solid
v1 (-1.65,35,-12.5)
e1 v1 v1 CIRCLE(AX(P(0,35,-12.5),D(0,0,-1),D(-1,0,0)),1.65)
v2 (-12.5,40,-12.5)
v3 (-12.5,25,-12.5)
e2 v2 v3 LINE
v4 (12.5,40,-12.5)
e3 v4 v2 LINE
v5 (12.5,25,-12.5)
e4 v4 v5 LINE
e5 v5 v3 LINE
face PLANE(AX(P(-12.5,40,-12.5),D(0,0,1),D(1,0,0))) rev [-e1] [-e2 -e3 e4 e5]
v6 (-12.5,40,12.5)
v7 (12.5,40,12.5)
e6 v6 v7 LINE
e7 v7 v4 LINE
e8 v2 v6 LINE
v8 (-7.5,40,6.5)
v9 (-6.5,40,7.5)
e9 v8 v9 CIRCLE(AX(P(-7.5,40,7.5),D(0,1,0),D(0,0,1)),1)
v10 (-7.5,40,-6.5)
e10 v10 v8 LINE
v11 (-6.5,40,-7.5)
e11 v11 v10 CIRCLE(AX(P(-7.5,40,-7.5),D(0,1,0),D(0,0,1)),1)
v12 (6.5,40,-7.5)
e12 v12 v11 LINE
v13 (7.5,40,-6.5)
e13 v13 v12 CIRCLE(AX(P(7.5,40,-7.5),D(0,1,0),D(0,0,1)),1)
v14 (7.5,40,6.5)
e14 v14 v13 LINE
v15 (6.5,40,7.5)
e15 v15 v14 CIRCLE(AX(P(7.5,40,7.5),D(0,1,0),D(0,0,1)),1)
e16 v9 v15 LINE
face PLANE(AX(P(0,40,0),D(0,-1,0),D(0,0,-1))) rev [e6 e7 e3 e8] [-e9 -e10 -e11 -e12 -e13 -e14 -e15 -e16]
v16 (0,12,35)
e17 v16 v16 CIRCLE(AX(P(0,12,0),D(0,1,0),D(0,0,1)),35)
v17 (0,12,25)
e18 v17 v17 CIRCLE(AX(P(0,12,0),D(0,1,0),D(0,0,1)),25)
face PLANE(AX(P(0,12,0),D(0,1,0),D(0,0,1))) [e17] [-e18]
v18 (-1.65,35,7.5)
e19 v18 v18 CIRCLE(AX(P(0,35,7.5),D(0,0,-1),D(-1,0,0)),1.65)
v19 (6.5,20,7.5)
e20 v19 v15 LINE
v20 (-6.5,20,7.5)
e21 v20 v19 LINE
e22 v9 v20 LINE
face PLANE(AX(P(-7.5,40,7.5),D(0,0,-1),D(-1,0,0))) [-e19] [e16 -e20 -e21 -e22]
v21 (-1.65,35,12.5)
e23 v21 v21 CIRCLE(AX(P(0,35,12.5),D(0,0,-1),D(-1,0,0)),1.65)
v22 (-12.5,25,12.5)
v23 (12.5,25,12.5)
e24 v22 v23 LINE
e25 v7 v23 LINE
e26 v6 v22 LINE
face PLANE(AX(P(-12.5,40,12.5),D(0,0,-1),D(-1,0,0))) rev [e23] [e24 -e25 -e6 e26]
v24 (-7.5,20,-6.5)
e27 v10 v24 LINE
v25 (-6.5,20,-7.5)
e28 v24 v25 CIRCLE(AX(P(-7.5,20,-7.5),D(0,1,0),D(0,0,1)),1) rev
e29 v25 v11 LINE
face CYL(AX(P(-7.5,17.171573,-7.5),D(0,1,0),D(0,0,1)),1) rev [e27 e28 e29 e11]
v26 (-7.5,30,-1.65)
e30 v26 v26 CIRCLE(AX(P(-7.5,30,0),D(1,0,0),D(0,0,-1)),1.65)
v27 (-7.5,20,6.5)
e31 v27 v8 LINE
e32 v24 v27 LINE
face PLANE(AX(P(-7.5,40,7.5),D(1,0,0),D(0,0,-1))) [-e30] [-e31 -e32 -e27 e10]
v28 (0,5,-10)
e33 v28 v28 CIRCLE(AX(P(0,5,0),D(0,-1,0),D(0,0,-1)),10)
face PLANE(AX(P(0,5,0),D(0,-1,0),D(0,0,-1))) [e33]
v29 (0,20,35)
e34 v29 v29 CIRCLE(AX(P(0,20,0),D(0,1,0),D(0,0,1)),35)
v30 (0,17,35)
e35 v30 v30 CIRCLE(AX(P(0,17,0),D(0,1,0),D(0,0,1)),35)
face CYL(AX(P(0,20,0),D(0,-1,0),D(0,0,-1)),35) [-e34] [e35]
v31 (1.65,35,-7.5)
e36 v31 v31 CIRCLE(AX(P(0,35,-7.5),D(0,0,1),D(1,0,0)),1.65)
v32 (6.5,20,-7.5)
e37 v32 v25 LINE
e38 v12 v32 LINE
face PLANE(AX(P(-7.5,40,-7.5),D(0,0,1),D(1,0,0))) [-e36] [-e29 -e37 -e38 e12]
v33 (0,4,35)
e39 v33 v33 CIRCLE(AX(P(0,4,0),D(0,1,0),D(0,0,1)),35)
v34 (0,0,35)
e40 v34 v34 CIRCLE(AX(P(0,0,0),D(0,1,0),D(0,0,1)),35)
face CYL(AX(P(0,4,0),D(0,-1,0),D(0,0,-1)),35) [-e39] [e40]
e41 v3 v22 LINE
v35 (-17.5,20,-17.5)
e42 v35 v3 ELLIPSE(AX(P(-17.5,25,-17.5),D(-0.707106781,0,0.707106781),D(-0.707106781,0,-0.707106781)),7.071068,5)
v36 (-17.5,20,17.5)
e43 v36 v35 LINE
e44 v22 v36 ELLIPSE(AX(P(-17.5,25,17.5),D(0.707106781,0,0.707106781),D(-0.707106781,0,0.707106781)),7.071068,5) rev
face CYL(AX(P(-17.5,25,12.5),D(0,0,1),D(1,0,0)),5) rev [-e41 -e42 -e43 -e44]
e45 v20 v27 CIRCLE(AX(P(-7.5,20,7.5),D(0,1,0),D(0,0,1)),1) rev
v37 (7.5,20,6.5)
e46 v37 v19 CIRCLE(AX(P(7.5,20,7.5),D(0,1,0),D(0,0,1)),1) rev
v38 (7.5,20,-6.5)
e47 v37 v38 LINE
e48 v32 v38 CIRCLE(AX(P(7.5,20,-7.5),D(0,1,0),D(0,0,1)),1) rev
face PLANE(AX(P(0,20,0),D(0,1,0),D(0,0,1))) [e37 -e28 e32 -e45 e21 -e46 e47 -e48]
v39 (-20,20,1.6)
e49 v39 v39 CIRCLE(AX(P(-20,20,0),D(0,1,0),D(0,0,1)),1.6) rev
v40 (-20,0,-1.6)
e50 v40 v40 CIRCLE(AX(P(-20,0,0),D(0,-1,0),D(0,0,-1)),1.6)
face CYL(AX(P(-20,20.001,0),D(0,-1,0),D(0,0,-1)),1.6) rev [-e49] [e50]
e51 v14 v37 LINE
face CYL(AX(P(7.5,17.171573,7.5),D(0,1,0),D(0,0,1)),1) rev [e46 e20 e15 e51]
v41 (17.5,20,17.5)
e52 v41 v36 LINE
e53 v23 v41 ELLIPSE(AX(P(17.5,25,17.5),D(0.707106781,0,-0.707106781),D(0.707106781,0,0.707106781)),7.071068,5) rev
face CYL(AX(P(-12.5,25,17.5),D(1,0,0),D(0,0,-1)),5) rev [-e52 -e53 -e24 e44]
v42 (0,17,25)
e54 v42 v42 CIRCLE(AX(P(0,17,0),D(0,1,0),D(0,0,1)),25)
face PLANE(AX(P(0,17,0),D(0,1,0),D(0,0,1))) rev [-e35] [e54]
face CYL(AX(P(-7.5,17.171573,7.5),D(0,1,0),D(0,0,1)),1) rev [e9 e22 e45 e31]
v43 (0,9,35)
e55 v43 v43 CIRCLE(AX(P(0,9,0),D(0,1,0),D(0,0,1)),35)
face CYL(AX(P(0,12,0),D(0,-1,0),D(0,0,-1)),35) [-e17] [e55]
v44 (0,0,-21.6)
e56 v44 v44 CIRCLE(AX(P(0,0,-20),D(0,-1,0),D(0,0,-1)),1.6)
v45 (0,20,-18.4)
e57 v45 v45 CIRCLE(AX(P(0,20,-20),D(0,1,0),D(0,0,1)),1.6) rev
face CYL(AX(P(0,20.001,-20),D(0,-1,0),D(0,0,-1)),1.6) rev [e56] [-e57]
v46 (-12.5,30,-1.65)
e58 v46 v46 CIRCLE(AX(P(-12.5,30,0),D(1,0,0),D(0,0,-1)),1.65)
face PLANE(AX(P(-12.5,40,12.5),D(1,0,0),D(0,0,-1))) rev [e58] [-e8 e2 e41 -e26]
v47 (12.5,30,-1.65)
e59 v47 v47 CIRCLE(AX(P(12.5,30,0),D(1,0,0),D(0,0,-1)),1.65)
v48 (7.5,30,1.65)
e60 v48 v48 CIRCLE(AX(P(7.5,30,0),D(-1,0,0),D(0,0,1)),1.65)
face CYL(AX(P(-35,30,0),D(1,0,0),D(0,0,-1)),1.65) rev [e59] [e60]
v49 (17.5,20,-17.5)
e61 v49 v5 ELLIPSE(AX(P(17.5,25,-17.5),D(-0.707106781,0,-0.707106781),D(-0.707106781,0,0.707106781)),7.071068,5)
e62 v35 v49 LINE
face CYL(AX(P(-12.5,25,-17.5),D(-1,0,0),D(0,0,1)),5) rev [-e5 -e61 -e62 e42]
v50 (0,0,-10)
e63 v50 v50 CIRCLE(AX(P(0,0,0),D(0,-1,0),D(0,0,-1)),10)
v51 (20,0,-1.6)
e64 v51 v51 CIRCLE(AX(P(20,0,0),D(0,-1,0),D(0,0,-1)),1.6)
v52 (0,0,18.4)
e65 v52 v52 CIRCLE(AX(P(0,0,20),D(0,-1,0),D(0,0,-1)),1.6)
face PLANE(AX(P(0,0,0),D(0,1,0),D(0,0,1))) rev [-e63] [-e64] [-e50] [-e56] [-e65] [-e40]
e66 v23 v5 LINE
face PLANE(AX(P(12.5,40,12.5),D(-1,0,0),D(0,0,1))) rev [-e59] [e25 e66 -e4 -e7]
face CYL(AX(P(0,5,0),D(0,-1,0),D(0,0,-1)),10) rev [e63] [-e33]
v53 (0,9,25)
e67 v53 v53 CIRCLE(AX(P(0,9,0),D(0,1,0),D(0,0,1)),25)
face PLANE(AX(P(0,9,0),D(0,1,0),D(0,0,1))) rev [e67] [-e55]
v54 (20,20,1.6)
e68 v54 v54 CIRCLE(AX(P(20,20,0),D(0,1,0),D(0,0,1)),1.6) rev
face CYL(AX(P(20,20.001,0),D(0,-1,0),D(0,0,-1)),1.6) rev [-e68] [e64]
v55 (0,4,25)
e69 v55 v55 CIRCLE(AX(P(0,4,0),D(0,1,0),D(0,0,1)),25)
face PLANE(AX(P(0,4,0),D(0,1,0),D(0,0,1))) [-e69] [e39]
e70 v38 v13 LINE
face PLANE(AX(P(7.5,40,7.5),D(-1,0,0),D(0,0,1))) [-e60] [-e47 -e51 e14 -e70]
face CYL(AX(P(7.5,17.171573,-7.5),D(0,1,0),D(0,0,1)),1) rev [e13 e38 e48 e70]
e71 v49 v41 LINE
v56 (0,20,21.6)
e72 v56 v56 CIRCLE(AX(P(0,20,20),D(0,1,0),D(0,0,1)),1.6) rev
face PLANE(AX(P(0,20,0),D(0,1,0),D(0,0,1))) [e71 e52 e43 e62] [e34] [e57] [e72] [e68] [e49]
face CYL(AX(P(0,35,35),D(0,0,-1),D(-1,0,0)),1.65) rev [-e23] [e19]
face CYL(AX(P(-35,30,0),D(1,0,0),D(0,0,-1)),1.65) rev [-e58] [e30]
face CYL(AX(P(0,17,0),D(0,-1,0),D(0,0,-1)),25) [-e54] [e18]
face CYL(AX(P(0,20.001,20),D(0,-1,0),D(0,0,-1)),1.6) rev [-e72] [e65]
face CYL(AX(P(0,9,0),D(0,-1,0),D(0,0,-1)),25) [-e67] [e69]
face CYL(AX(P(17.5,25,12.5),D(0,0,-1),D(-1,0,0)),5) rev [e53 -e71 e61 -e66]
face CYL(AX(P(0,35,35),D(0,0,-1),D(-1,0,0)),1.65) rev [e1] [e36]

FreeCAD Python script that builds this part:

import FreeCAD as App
import Part
import Sketcher

V = App.Vector
Q = App.Units.Quantity


def edges_at(feature, points):
    """Names of the edges that pass closest to the given points."""
    edges = feature.Shape.Edges
    near = lambda p: min(range(len(edges)), key=lambda i: edges[i].distToShape(Part.Vertex(*p))[0])
    return sorted({f"Edge{near(p) + 1}" for p in points})


def add_polygon(sketch, points):
    """Adds a closed chain of lines whose ends are joined by coincident constraints."""
    first, n = sketch.GeometryCount, len(points)
    for a, b in zip(points, points[1:] + points[:1]):
        sketch.addGeometry(Part.LineSegment(App.Vector(*a, 0), App.Vector(*b, 0)), False)
    for i in range(n):
        sketch.addConstraint(Sketcher.Constraint("Coincident", first + i, 2, first + (i + 1) % n, 1))

doc = App.newDocument("Part")
body = doc.addObject("PartDesign::Body", "Body")

sketch1 = doc.addObject("Sketcher::SketchObject", "Sketch")
body.addObject(sketch1)
sketch1.AttachmentSupport = (doc.XZ_Plane, [""])
sketch1.MapMode = "FlatFace"
sketch1.addGeometry(Part.Circle(V(0, 0, 0), V(0, 0, 1), 35), False)
sketch1.addConstraint([
    Sketcher.Constraint("Coincident", 0, 3, -1, 1),
    Sketcher.Constraint("Diameter", 0, Q("70 mm")),
])
pad1 = doc.addObject("PartDesign::Pad", "Pad")
body.addObject(pad1)
pad1.Profile = sketch1
pad1.Length = 4
pad1.Reversed = True

sketch2 = doc.addObject("Sketcher::SketchObject", "Sketch001")
body.addObject(sketch2)
sketch2.AttachmentSupport = (doc.XZ_Plane, [""])
sketch2.MapMode = "FlatFace"
sketch2.AttachmentOffset = App.Placement(V(0, 0, -4), App.Rotation())
sketch2.addGeometry(Part.Circle(V(0, 0, 0), V(0, 0, 1), 25), False)
sketch2.addConstraint([
    Sketcher.Constraint("Coincident", 0, 3, -1, 1),
    Sketcher.Constraint("Diameter", 0, Q("50 mm")),
])
pad2 = doc.addObject("PartDesign::Pad", "Pad001")
body.addObject(pad2)
pad2.Profile = sketch2
pad2.Length = 5
pad2.Reversed = True

sketch3 = doc.addObject("Sketcher::SketchObject", "Sketch002")
body.addObject(sketch3)
sketch3.AttachmentSupport = (doc.XZ_Plane, [""])
sketch3.MapMode = "FlatFace"
sketch3.AttachmentOffset = App.Placement(V(0, 0, -9), App.Rotation())
sketch3.addGeometry(Part.Circle(V(0, 0, 0), V(0, 0, 1), 35), False)
sketch3.addConstraint([
    Sketcher.Constraint("Coincident", 0, 3, -1, 1),
    Sketcher.Constraint("Diameter", 0, Q("70 mm")),
])
pad3 = doc.addObject("PartDesign::Pad", "Pad002")
body.addObject(pad3)
pad3.Profile = sketch3
pad3.Length = 3
pad3.Reversed = True

sketch4 = doc.addObject("Sketcher::SketchObject", "Sketch003")
body.addObject(sketch4)
sketch4.AttachmentSupport = (doc.XZ_Plane, [""])
sketch4.MapMode = "FlatFace"
sketch4.AttachmentOffset = App.Placement(V(0, 0, -12), App.Rotation())
sketch4.addGeometry(Part.Circle(V(0, 0, 0), V(0, 0, 1), 25), False)
sketch4.addConstraint([
    Sketcher.Constraint("Coincident", 0, 3, -1, 1),
    Sketcher.Constraint("Diameter", 0, Q("50 mm")),
])
pad4 = doc.addObject("PartDesign::Pad", "Pad003")
body.addObject(pad4)
pad4.Profile = sketch4
pad4.Length = 5
pad4.Reversed = True

sketch5 = doc.addObject("Sketcher::SketchObject", "Sketch004")
body.addObject(sketch5)
sketch5.AttachmentSupport = (doc.XZ_Plane, [""])
sketch5.MapMode = "FlatFace"
sketch5.AttachmentOffset = App.Placement(V(0, 0, -17), App.Rotation())
sketch5.addGeometry(Part.Circle(V(0, 0, 0), V(0, 0, 1), 35), False)
sketch5.addConstraint([
    Sketcher.Constraint("Coincident", 0, 3, -1, 1),
    Sketcher.Constraint("Diameter", 0, Q("70 mm")),
])
pad5 = doc.addObject("PartDesign::Pad", "Pad004")
body.addObject(pad5)
pad5.Profile = sketch5
pad5.Length = 3
pad5.Reversed = True

sketch6 = doc.addObject("Sketcher::SketchObject", "Sketch005")
body.addObject(sketch6)
sketch6.AttachmentSupport = (doc.XZ_Plane, [""])
sketch6.MapMode = "FlatFace"
sketch6.addGeometry(Part.Circle(V(-20, 0, 0), V(0, 0, 1), 1.6), False)
sketch6.addConstraint([
    Sketcher.Constraint("PointOnObject", 0, 3, -1),
    Sketcher.Constraint("Diameter", 0, Q("3.2 mm")),
    Sketcher.Constraint("DistanceX", 0, 3, -1, 1, Q("20 mm")),
])
pocket1 = doc.addObject("PartDesign::Pocket", "Pocket")
body.addObject(pocket1)
pocket1.Profile = sketch6
pocket1.Type = "UpToFirst"

sketch7 = doc.addObject("Sketcher::SketchObject", "Sketch006")
body.addObject(sketch7)
sketch7.AttachmentSupport = (doc.XZ_Plane, [""])
sketch7.MapMode = "FlatFace"
sketch7.addGeometry(Part.Circle(V(0, 20, 0), V(0, 0, 1), 1.6), False)
sketch7.addConstraint([
    Sketcher.Constraint("PointOnObject", 0, 3, -2),
    Sketcher.Constraint("Diameter", 0, Q("3.2 mm")),
    Sketcher.Constraint("DistanceY", -1, 1, 0, 3, Q("20 mm")),
])
pocket2 = doc.addObject("PartDesign::Pocket", "Pocket001")
body.addObject(pocket2)
pocket2.Profile = sketch7
pocket2.Type = "UpToFirst"

sketch8 = doc.addObject("Sketcher::SketchObject", "Sketch007")
body.addObject(sketch8)
sketch8.AttachmentSupport = (doc.XZ_Plane, [""])
sketch8.MapMode = "FlatFace"
sketch8.addGeometry(Part.Circle(V(0, -20, 0), V(0, 0, 1), 1.6), False)
sketch8.addConstraint([
    Sketcher.Constraint("PointOnObject", 0, 3, -2),
    Sketcher.Constraint("Diameter", 0, Q("3.2 mm")),
    Sketcher.Constraint("DistanceY", 0, 3, -1, 1, Q("20 mm")),
])
pocket3 = doc.addObject("PartDesign::Pocket", "Pocket002")
body.addObject(pocket3)
pocket3.Profile = sketch8
pocket3.Type = "UpToFirst"

sketch9 = doc.addObject("Sketcher::SketchObject", "Sketch008")
body.addObject(sketch9)
sketch9.AttachmentSupport = (doc.XZ_Plane, [""])
sketch9.MapMode = "FlatFace"
sketch9.addGeometry(Part.Circle(V(20, 0, 0), V(0, 0, 1), 1.6), False)
sketch9.addConstraint([
    Sketcher.Constraint("PointOnObject", 0, 3, -1),
    Sketcher.Constraint("Diameter", 0, Q("3.2 mm")),
    Sketcher.Constraint("DistanceX", -1, 1, 0, 3, Q("20 mm")),
])
pocket4 = doc.addObject("PartDesign::Pocket", "Pocket003")
body.addObject(pocket4)
pocket4.Profile = sketch9
pocket4.Type = "UpToFirst"

sketch10 = doc.addObject("Sketcher::SketchObject", "Sketch009")
body.addObject(sketch10)
sketch10.AttachmentSupport = (doc.XZ_Plane, [""])
sketch10.MapMode = "FlatFace"
sketch10.addGeometry(Part.Circle(V(0, 0, 0), V(0, 0, 1), 10), False)
sketch10.addConstraint([
    Sketcher.Constraint("Coincident", 0, 3, -1, 1),
    Sketcher.Constraint("Diameter", 0, Q("20 mm")),
])
pocket5 = doc.addObject("PartDesign::Pocket", "Pocket004")
body.addObject(pocket5)
pocket5.Profile = sketch10
pocket5.Length = 5

sketch11 = doc.addObject("Sketcher::SketchObject", "Sketch010")
body.addObject(sketch11)
sketch11.AttachmentSupport = (doc.XZ_Plane, [""])
sketch11.MapMode = "FlatFace"
sketch11.AttachmentOffset = App.Placement(V(0, 0, -20), App.Rotation())
add_polygon(sketch11, [(-12, -12), (-12, 12), (12, 12), (12, -12)])
add_polygon(sketch11, [(8, 8), (-8, 8), (-8, -8), (8, -8)])
sketch11.addConstraint([
    Sketcher.Constraint("Vertical", 0),
    Sketcher.Constraint("Horizontal", 1),
    Sketcher.Constraint("Vertical", 2),
    Sketcher.Constraint("Horizontal", 3),
    Sketcher.Constraint("Horizontal", 4),
    Sketcher.Constraint("Vertical", 5),
    Sketcher.Constraint("Horizontal", 6),
    Sketcher.Constraint("Vertical", 7),
    Sketcher.Constraint("Symmetric", 0, 2, 2, 2, -1, 1),
    Sketcher.Constraint("Symmetric", 4, 2, 6, 2, -1, 1),
    Sketcher.Constraint("Equal", 3, 0),
    Sketcher.Constraint("Equal", 6, 5),
    Sketcher.Constraint("DistanceX", 1, 1, 1, 2, Q("25 mm")),
    Sketcher.Constraint("DistanceX", 4, 2, 4, 1, Q("15 mm")),
])
pad6 = doc.addObject("PartDesign::Pad", "Pad005")
body.addObject(pad6)
pad6.Profile = sketch11
pad6.Length = 20
pad6.Reversed = True

sketch12 = doc.addObject("Sketcher::SketchObject", "Sketch011")
body.addObject(sketch12)
sketch12.AttachmentSupport = (doc.XZ_Plane, [""])
sketch12.MapMode = "FlatFace"
sketch12.AttachmentOffset = App.Placement(V(0, 0, -40), App.Rotation())
sketch12.addGeometry([
    Part.Circle(V(7.5, -7.5, 0), V(0, 0, 1), 1),
    Part.Circle(V(-7.5, -7.5, 0), V(0, 0, 1), 1),
    Part.Circle(V(-7.5, 7.5, 0), V(0, 0, 1), 1),
    Part.Circle(V(7.5, 7.5, 0), V(0, 0, 1), 1),
], False)
sketch12.addConstraint([
    Sketcher.Constraint("Equal", 0, 1),
    Sketcher.Constraint("Equal", 1, 2),
    Sketcher.Constraint("Equal", 2, 3),
    Sketcher.Constraint("Symmetric", 0, 3, 2, 3, -1, 1),
    Sketcher.Constraint("Symmetric", 1, 3, 3, 3, -1, 1),
    Sketcher.Constraint("Symmetric", 0, 3, 1, 3, -2),
    Sketcher.Constraint("Diameter", 0, Q("2 mm")),
    Sketcher.Constraint("DistanceX", 1, 3, 0, 3, Q("15 mm")),
    Sketcher.Constraint("DistanceY", 1, 3, 2, 3, Q("15 mm")),
])
pocket6 = doc.addObject("PartDesign::Pocket", "Pocket005")
body.addObject(pocket6)
pocket6.Profile = sketch12
pocket6.Length = 20
pocket6.Reversed = True
doc.recompute()

fillet = doc.addObject("PartDesign::Fillet", "Fillet")
body.addObject(fillet)
fillet.Base = (pocket6, edges_at(pocket6, [
    (12.5, 20, 0),
    (0, 20, -12.5),
    (-12.5, 20, 0),
    (0, 20, 12.5),
]))
fillet.Radius = 5

sketch13 = doc.addObject("Sketcher::SketchObject", "Sketch012")
body.addObject(sketch13)
sketch13.AttachmentSupport = (doc.YZ_Plane, [""])
sketch13.MapMode = "FlatFace"
sketch13.AttachmentOffset = App.Placement(V(0, 0, 12.5), App.Rotation())
sketch13.addGeometry(Part.Circle(V(30, 0, 0), V(0, 0, 1), 1.6), False)
sketch13.addConstraint([
    Sketcher.Constraint("PointOnObject", 0, 3, -1),
    Sketcher.Constraint("Diameter", 0, Q("3.3 mm")),
    Sketcher.Constraint("DistanceX", -1, 1, 0, 3, Q("30 mm")),
])
pocket7 = doc.addObject("PartDesign::Pocket", "Pocket006")
body.addObject(pocket7)
pocket7.Profile = sketch13
pocket7.Type = "ThroughAll"

sketch14 = doc.addObject("Sketcher::SketchObject", "Sketch013")
body.addObject(sketch14)
sketch14.AttachmentSupport = (doc.XY_Plane, [""])
sketch14.MapMode = "FlatFace"
sketch14.AttachmentOffset = App.Placement(V(0, 0, -12.5), App.Rotation())
sketch14.addGeometry(Part.Circle(V(0, 35, 0), V(0, 0, 1), 1.6), False)
sketch14.addConstraint([
    Sketcher.Constraint("PointOnObject", 0, 3, -2),
    Sketcher.Constraint("Diameter", 0, Q("3.3 mm")),
    Sketcher.Constraint("DistanceY", -1, 1, 0, 3, Q("35 mm")),
])
pocket8 = doc.addObject("PartDesign::Pocket", "Pocket007")
body.addObject(pocket8)
pocket8.Profile = sketch14
pocket8.Type = "ThroughAll"
pocket8.Reversed = True

doc.recompute()
